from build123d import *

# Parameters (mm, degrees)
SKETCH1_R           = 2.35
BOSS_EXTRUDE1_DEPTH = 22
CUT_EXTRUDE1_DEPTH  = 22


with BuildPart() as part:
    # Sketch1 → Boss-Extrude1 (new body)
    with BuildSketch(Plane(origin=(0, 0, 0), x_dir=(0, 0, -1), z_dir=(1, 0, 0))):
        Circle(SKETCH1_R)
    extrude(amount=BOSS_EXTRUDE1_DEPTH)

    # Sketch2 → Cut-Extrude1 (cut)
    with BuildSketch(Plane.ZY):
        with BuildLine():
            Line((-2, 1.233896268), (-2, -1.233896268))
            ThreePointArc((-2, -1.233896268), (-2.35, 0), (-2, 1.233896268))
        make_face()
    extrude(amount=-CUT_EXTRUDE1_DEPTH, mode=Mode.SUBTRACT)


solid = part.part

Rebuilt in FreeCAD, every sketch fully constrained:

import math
import FreeCAD as App
import Part
import Sketcher
from FreeCAD import Vector
Q = App.Units.Quantity

doc = App.newDocument("Part")
body = doc.addObject("PartDesign::Body", "Body")

# Sketch on YZ plane
sketch1 = doc.addObject("Sketcher::SketchObject", "Sketch")
body.addObject(sketch1)
sketch1.AttachmentSupport = (doc.YZ_Plane, [""])
sketch1.MapMode = "FlatFace"
sketch1.addGeometry(Part.Circle(Vector(0, 0, 0), Vector(0, 0, 1), 2.4), False)
sketch1.addConstraint([
    Sketcher.Constraint("Coincident", 0, 3, -1, 1),
    Sketcher.Constraint("Diameter", 0, Q("4.7 mm")),
])
pad1 = doc.addObject("PartDesign::Pad", "Pad")
body.addObject(pad1)
pad1.Profile = sketch1
pad1.Length = 22

# Sketch on YZ plane
sketch2 = doc.addObject("Sketcher::SketchObject", "Sketch001")
body.addObject(sketch2)
sketch2.AttachmentSupport = (doc.YZ_Plane, [""])
sketch2.MapMode = "FlatFace"
sketch2.addGeometry([
    Part.LineSegment(Vector(-1.2, -2, 0), Vector(1.2, -2, 0)),
    Part.ArcOfCircle(Part.Circle(Vector(0, 0, 0), Vector(0, 0, 1), 2.4), math.radians(-122), math.radians(-58)),
], False)
sketch2.addConstraint([
    Sketcher.Constraint("Coincident", 0, 1, 1, 1),
    Sketcher.Constraint("Coincident", 1, 2, 0, 2),
    Sketcher.Constraint("Horizontal", 0),
    Sketcher.Constraint("Coincident", 1, 3, -1, 1),
    Sketcher.Constraint("Radius", 1, Q("2.35 mm")),
    Sketcher.Constraint("DistanceY", 0, 1, -1, 1, Q("2 mm")),
])
pocket1 = doc.addObject("PartDesign::Pocket", "Pocket")
body.addObject(pocket1)
pocket1.Profile = sketch2
pocket1.Length = 22
pocket1.Reversed = True

doc.recompute()
